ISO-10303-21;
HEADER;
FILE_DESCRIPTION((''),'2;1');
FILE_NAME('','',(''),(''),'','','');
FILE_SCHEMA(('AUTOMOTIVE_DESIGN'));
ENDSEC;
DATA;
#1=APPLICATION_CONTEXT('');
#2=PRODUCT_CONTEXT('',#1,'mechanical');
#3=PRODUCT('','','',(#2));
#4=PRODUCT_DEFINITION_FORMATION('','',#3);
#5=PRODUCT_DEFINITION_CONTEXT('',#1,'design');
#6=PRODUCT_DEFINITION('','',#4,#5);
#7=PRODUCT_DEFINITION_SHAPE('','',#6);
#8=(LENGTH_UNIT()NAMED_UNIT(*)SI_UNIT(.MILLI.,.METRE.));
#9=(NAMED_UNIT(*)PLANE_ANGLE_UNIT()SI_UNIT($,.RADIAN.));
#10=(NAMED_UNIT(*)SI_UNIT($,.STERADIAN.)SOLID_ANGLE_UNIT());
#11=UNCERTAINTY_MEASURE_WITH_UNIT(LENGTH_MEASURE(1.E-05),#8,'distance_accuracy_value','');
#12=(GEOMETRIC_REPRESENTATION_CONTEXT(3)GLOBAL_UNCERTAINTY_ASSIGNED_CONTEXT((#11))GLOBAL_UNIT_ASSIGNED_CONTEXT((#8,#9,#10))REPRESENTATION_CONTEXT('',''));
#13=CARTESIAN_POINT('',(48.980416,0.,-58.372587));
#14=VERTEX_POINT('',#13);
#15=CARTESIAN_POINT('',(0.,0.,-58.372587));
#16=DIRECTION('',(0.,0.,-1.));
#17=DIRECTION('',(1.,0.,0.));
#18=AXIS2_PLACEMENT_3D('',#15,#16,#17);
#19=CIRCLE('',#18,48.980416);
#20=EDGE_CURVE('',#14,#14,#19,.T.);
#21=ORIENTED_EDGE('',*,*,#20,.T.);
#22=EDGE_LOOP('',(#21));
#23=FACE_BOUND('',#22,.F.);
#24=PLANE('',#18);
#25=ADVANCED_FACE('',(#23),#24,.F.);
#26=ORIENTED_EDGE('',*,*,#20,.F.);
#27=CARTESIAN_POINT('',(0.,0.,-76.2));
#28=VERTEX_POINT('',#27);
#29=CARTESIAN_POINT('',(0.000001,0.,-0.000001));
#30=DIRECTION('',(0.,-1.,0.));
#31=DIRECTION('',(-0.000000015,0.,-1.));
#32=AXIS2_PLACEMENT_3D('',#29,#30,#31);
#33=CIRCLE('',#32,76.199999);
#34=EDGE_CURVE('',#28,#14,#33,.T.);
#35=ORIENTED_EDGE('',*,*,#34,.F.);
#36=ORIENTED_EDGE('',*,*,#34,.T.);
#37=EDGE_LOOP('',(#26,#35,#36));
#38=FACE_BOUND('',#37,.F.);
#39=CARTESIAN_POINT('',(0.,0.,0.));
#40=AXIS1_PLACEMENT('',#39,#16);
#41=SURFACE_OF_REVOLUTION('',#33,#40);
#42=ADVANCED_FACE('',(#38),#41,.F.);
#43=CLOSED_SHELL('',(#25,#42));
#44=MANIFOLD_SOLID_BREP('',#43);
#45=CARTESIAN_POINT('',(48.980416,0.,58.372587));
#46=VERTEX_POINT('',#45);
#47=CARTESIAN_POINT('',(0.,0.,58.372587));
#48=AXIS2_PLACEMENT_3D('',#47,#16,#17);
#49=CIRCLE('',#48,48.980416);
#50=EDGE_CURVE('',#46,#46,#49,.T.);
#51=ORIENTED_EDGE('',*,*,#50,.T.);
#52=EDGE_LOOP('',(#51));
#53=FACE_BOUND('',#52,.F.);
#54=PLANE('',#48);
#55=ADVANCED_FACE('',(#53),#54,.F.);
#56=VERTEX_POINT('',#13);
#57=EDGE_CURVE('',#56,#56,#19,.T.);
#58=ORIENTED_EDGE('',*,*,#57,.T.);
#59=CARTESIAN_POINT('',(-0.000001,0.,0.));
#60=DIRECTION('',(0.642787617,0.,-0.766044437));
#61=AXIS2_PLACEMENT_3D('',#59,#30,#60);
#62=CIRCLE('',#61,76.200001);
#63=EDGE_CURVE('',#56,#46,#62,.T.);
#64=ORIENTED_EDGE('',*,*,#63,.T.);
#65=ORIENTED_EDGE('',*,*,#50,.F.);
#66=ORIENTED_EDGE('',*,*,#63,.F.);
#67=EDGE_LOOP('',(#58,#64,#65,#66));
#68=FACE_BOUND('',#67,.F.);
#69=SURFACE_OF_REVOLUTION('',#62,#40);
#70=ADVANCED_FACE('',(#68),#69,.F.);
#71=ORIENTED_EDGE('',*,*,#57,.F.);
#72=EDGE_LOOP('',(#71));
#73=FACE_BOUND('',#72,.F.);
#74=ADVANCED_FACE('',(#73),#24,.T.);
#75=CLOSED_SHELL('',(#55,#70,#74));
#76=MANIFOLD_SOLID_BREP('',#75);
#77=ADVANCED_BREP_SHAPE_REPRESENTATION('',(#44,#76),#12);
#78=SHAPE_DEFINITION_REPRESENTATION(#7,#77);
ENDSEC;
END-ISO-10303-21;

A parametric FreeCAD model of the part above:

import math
import FreeCAD as App
import Part
import Sketcher
from FreeCAD import Vector
Q = App.Units.Quantity

doc = App.newDocument("Part")
body = doc.addObject("PartDesign::Body", "Body")

# Sketch on XZ plane
sketch1 = doc.addObject("Sketcher::SketchObject", "Sketch")
body.addObject(sketch1)
sketch1.AttachmentSupport = (doc.XZ_Plane, [""])
sketch1.MapMode = "FlatFace"
sketch1.addGeometry([
    Part.LineSegment(Vector(0, -58, 0), Vector(49, -58, 0)),
    Part.ArcOfCircle(Part.Circle(Vector(0, 0, 0), Vector(0, 0, 1), 76), math.radians(-50), math.radians(50)),
    Part.LineSegment(Vector(49, 58, 0), Vector(0, 58, 0)),
    Part.LineSegment(Vector(0, 58, 0), Vector(0, -58, 0)),
], False)
sketch1.addConstraint([
    Sketcher.Constraint("Coincident", 0, 2, 1, 1),
    Sketcher.Constraint("Coincident", 1, 2, 2, 1),
    Sketcher.Constraint("Coincident", 2, 2, 3, 1),
    Sketcher.Constraint("Coincident", 3, 2, 0, 1),
    Sketcher.Constraint("Horizontal", 0),
    Sketcher.Constraint("Horizontal", 2),
    Sketcher.Constraint("Vertical", 3),
    Sketcher.Constraint("Coincident", 1, 3, -1, 1),
    Sketcher.Constraint("Symmetric", 2, 2, 3, 2, -1, 1),
    Sketcher.Constraint("Radius", 1, Q("3 in")),
    Sketcher.Constraint("DistanceX", 0, 1, 0, 2, 48.980416),
])
revolution = doc.addObject("PartDesign::Revolution", "Revolution")
body.addObject(revolution)
revolution.Profile = sketch1
revolution.ReferenceAxis = (sketch1, ["V_Axis"])
revolution.Angle = 360
body2 = doc.addObject("PartDesign::Body", "Body001")

# Sketch on XZ plane
sketch2 = doc.addObject("Sketcher::SketchObject", "Sketch001")
body2.addObject(sketch2)
sketch2.AttachmentSupport = (doc.getObject("XZ_Plane001"), [""])
sketch2.MapMode = "FlatFace"
sketch2.addGeometry([
    Part.LineSegment(Vector(0, -58, 0), Vector(0, -76, 0)),
    Part.ArcOfCircle(Part.Circle(Vector(0, 0, 0), Vector(0, 0, 1), 76), math.radians(-90), math.radians(-50)),
    Part.LineSegment(Vector(49, -58, 0), Vector(0, -58, 0)),
], False)
sketch2.addConstraint([
    Sketcher.Constraint("Coincident", 0, 2, 1, 1),
    Sketcher.Constraint("Coincident", 1, 2, 2, 1),
    Sketcher.Constraint("Coincident", 2, 2, 0, 1),
    Sketcher.Constraint("Vertical", 0),
    Sketcher.Constraint("Horizontal", 2),
    Sketcher.Constraint("Coincident", 1, 3, -1, 1),
    Sketcher.Constraint("PointOnObject", 0, 2, -2),
    Sketcher.Constraint("Radius", 1, Q("3 in")),
    Sketcher.Constraint("DistanceX", 2, 2, 2, 1, 48.980416),
])
revolution2 = doc.addObject("PartDesign::Revolution", "Revolution001")
body2.addObject(revolution2)
revolution2.Profile = sketch2
revolution2.ReferenceAxis = (sketch2, ["V_Axis"])
revolution2.Angle = 360

doc.recompute()
